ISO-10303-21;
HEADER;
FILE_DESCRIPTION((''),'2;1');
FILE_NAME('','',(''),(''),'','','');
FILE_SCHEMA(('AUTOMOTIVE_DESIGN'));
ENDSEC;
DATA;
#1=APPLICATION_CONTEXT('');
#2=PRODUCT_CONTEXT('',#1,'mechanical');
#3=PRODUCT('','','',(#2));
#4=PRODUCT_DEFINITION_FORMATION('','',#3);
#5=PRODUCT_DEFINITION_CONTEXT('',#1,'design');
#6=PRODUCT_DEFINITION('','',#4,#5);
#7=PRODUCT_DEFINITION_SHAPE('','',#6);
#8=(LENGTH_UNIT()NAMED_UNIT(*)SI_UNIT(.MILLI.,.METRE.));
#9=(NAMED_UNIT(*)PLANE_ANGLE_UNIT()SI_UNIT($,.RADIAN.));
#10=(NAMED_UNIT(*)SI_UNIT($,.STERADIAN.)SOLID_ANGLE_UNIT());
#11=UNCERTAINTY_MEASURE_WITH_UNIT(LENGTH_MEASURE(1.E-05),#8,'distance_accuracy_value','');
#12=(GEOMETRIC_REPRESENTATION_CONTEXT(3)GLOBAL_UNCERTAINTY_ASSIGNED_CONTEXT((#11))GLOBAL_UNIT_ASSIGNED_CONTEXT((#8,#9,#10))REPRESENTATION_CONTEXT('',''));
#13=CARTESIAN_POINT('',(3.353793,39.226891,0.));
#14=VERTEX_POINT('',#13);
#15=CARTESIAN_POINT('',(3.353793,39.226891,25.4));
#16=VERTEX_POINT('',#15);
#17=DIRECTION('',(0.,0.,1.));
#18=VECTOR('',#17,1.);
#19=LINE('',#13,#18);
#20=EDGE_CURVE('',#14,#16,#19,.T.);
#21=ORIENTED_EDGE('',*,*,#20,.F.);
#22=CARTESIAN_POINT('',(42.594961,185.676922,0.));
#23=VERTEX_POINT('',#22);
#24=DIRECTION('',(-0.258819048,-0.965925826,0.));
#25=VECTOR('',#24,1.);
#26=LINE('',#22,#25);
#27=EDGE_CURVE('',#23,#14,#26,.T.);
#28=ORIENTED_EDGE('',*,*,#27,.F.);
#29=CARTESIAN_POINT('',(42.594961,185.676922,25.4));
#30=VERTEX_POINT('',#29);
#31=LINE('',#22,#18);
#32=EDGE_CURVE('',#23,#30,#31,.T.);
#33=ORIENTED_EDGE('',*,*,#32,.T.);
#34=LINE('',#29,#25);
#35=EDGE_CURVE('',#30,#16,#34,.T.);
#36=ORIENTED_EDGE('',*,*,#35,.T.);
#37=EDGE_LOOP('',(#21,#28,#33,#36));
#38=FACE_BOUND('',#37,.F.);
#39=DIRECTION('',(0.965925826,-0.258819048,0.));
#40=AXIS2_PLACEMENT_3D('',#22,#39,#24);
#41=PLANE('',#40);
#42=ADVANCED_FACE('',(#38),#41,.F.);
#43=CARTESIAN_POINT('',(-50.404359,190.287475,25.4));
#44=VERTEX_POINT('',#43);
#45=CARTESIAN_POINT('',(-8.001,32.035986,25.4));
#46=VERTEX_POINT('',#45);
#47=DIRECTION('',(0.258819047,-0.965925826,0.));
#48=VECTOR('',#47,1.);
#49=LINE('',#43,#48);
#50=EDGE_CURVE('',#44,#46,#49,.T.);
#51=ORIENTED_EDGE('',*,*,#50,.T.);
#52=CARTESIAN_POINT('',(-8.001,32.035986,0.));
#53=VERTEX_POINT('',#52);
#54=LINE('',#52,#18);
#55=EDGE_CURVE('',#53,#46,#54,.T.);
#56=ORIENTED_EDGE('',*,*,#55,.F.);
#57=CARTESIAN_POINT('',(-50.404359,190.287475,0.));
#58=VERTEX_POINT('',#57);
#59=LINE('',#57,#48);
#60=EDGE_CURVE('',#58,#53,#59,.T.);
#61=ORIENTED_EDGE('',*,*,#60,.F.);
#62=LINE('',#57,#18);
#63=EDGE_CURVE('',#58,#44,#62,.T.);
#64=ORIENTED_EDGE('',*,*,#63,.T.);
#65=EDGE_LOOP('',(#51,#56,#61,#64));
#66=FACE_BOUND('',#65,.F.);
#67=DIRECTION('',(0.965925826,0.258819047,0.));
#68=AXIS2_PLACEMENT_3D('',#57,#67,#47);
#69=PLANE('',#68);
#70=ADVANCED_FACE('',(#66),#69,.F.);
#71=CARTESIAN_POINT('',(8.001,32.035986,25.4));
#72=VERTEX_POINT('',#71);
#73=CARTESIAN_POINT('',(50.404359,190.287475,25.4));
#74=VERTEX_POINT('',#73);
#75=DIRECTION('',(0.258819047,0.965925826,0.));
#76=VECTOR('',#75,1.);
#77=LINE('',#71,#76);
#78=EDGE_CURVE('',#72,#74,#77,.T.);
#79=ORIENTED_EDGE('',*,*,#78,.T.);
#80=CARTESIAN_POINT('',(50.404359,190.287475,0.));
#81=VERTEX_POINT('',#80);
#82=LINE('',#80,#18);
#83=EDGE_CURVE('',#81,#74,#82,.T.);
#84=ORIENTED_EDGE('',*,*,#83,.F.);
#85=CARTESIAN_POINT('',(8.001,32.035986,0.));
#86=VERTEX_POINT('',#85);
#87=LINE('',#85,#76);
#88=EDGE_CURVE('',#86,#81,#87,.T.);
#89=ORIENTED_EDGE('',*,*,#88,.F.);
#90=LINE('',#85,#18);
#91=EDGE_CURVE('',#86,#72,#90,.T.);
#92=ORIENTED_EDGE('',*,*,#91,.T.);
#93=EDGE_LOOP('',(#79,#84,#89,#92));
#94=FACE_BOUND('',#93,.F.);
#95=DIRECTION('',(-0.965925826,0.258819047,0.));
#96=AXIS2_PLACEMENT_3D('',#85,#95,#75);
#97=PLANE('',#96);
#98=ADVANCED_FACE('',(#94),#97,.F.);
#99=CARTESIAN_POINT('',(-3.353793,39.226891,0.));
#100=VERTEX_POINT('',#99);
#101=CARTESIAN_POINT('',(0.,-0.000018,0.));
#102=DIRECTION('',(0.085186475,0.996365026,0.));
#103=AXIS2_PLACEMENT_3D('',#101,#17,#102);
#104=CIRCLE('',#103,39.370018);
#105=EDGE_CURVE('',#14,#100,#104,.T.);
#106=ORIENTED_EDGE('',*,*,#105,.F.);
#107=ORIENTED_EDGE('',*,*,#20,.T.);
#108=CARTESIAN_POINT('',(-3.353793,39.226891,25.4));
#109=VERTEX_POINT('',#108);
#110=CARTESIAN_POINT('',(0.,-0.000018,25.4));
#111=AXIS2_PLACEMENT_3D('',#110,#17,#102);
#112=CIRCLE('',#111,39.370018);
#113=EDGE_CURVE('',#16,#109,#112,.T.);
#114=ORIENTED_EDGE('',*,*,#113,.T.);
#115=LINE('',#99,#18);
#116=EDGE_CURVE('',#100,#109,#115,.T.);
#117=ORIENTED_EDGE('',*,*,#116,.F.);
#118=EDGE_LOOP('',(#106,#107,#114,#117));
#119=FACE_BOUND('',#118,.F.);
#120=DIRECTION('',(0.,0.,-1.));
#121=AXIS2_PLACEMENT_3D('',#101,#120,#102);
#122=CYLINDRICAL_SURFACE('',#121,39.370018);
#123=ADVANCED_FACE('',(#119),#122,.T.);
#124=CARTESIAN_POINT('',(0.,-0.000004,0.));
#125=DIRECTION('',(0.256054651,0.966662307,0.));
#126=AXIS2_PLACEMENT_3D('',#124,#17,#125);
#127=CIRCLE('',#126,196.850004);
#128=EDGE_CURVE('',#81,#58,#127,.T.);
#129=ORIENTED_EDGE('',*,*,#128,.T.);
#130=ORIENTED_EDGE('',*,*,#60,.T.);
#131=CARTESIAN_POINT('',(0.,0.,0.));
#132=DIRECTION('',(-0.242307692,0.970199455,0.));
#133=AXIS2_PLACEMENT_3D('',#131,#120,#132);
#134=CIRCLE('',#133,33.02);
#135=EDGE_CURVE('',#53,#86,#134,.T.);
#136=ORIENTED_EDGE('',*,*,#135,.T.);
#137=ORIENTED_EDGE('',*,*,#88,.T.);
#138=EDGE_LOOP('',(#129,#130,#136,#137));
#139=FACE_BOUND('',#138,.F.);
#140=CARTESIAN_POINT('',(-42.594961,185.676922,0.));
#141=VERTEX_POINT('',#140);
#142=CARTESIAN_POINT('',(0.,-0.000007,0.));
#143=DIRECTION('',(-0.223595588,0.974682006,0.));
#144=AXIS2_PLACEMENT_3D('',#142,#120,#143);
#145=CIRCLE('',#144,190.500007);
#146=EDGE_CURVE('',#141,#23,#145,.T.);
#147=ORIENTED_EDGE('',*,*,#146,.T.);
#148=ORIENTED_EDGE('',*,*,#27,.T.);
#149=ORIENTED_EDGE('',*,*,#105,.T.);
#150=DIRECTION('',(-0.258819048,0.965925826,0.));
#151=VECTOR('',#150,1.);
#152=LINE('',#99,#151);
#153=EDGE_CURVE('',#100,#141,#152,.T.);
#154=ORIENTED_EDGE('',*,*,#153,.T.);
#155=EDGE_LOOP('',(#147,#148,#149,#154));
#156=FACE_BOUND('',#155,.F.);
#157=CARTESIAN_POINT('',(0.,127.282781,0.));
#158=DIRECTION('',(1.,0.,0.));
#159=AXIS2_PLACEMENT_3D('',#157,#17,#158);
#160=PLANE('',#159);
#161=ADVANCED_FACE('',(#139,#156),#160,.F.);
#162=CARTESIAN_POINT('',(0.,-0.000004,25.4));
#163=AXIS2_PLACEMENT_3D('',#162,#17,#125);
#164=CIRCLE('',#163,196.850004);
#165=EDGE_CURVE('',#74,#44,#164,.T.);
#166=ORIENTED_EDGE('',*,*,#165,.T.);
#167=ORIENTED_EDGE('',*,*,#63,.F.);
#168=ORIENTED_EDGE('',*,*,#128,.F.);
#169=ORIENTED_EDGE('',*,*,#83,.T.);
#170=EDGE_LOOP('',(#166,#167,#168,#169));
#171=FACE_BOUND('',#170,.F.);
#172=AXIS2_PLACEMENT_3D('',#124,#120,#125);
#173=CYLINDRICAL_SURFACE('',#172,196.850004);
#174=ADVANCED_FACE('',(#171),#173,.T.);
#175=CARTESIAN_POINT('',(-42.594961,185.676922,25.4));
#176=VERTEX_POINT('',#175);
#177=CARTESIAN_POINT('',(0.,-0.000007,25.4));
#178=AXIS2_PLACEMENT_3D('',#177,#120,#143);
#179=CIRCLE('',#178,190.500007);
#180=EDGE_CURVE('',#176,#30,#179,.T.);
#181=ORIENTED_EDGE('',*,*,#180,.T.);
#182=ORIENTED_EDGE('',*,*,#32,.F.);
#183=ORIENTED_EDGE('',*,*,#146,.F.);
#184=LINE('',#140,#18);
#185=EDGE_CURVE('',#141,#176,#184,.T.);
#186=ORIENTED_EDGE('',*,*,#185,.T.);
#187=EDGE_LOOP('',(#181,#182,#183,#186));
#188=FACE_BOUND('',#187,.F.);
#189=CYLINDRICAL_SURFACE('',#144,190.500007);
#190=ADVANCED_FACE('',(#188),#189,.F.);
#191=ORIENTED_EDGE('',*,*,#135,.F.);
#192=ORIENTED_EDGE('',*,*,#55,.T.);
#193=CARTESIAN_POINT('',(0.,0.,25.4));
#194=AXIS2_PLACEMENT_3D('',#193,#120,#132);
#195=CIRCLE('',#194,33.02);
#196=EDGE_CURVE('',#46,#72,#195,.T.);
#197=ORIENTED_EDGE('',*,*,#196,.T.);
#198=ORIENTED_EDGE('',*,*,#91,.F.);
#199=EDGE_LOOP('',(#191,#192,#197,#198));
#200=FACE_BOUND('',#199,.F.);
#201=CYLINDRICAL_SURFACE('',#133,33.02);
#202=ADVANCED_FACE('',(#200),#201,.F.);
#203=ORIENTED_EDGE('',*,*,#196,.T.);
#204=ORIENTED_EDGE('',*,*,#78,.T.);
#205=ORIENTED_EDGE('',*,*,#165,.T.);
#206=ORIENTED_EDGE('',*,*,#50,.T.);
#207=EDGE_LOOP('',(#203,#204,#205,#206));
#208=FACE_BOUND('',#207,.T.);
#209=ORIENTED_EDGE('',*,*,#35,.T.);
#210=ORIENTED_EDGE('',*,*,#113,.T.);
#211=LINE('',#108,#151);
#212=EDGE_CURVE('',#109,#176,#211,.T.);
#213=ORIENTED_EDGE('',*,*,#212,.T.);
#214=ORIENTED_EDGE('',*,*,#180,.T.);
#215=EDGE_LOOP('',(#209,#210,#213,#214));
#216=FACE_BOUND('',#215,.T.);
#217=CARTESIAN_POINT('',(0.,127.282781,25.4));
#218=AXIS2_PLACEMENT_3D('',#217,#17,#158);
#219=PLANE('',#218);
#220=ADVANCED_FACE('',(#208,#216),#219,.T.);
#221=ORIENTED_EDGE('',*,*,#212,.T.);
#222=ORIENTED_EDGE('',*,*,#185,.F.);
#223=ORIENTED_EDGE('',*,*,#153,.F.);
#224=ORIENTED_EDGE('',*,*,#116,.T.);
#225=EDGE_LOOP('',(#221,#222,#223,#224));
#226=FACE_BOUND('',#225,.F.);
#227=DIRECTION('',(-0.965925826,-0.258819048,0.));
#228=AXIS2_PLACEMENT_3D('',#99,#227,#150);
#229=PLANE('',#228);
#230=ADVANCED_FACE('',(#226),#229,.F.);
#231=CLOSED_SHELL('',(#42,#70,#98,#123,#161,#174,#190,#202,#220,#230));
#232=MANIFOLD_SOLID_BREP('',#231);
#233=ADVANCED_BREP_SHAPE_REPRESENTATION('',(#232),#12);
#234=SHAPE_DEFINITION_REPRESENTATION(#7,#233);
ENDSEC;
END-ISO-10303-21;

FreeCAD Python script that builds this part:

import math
import FreeCAD as App
import Part
import Sketcher
Q = App.Units.Quantity

doc = App.newDocument("Part")
body = doc.addObject("PartDesign::Body", "Body")

sketch1 = body.newObject("Sketcher::SketchObject", "Sketch")
sketch1.AttachmentSupport = (doc.getObject("XY_Plane"), [""])
sketch1.MapMode = "FlatFace"
sketch1.addGeometry(Part.ArcOfCircle(Part.Circle(App.Vector(0, 0, 0), App.Vector(0, 0, 1), 33), math.radians(76), math.radians(104)), False)
sketch1.addGeometry(Part.LineSegment(App.Vector(8, 32, 0), App.Vector(50, 190, 0)), False)
sketch1.addGeometry(Part.ArcOfCircle(Part.Circle(App.Vector(0, 0, 0), App.Vector(0, 0, 1), 197), math.radians(75), math.radians(105)), False)
sketch1.addGeometry(Part.LineSegment(App.Vector(-50, 190, 0), App.Vector(-8, 32, 0)), False)
sketch1.addGeometry(Part.ArcOfCircle(Part.Circle(App.Vector(0, 0, 0), App.Vector(0, 0, 1), 191), math.radians(77), math.radians(103)), False)
sketch1.addGeometry(Part.LineSegment(App.Vector(43, 186, 0), App.Vector(3, 39, 0)), False)
sketch1.addGeometry(Part.ArcOfCircle(Part.Circle(App.Vector(0, 0, 0), App.Vector(0, 0, 1), 39), math.radians(85.11), math.radians(94.89)), False)
sketch1.addGeometry(Part.LineSegment(App.Vector(-3, 39, 0), App.Vector(-43, 186, 0)), False)
sketch1.addConstraint(Sketcher.Constraint("Coincident", 0, 1, 1, 1))
sketch1.addConstraint(Sketcher.Constraint("Coincident", 1, 2, 2, 1))
sketch1.addConstraint(Sketcher.Constraint("Coincident", 2, 2, 3, 1))
sketch1.addConstraint(Sketcher.Constraint("Coincident", 3, 2, 0, 2))
sketch1.addConstraint(Sketcher.Constraint("Coincident", 4, 1, 5, 1))
sketch1.addConstraint(Sketcher.Constraint("Coincident", 5, 2, 6, 1))
sketch1.addConstraint(Sketcher.Constraint("Coincident", 6, 2, 7, 1))
sketch1.addConstraint(Sketcher.Constraint("Coincident", 7, 2, 4, 2))
sketch1.addConstraint(Sketcher.Constraint("Coincident", 0, 3, -1, 1))
sketch1.addConstraint(Sketcher.Constraint("Coincident", 2, 3, -1, 1))
sketch1.addConstraint(Sketcher.Constraint("Coincident", 4, 3, -1, 1))
sketch1.addConstraint(Sketcher.Constraint("Symmetric", 5, 2, 6, 2, -2))
sketch1.addConstraint(Sketcher.Constraint("Parallel", 1, 5))
sketch1.addConstraint(Sketcher.Constraint("Parallel", 3, 7))
sketch1.addConstraint(Sketcher.Constraint("Horizontal", 1, 2, 2, 2))
sketch1.addConstraint(Sketcher.Constraint("Horizontal", 0, 1, 3, 2))
sketch1.addConstraint(Sketcher.Constraint("Radius", 0, Q("1.3 in")))
sketch1.addConstraint(Sketcher.Constraint("Radius", 2, Q("7.7500001 in")))
sketch1.addConstraint(Sketcher.Constraint("Angle", 1, Q("75 deg")))
sketch1.addConstraint(Sketcher.Constraint("DistanceX", 3, 2, 0, 1, Q("0.63 in")))
sketch1.addConstraint(Sketcher.Constraint("Radius", 4, Q("190.500007 mm")))
sketch1.addConstraint(Sketcher.Constraint("Radius", 6, Q("39.370018 mm")))
sketch1.addConstraint(Sketcher.Constraint("DistanceX", 2, 2, 7, 2, Q("7.809398 mm")))
sketch1.addConstraint(Sketcher.Constraint("Distance", 5, Q("151.616229 mm")))
pad1 = body.newObject("PartDesign::Pad", "Pad")
pad1.Profile = sketch1
pad1.Length = Q("1 in")

doc.recompute()
